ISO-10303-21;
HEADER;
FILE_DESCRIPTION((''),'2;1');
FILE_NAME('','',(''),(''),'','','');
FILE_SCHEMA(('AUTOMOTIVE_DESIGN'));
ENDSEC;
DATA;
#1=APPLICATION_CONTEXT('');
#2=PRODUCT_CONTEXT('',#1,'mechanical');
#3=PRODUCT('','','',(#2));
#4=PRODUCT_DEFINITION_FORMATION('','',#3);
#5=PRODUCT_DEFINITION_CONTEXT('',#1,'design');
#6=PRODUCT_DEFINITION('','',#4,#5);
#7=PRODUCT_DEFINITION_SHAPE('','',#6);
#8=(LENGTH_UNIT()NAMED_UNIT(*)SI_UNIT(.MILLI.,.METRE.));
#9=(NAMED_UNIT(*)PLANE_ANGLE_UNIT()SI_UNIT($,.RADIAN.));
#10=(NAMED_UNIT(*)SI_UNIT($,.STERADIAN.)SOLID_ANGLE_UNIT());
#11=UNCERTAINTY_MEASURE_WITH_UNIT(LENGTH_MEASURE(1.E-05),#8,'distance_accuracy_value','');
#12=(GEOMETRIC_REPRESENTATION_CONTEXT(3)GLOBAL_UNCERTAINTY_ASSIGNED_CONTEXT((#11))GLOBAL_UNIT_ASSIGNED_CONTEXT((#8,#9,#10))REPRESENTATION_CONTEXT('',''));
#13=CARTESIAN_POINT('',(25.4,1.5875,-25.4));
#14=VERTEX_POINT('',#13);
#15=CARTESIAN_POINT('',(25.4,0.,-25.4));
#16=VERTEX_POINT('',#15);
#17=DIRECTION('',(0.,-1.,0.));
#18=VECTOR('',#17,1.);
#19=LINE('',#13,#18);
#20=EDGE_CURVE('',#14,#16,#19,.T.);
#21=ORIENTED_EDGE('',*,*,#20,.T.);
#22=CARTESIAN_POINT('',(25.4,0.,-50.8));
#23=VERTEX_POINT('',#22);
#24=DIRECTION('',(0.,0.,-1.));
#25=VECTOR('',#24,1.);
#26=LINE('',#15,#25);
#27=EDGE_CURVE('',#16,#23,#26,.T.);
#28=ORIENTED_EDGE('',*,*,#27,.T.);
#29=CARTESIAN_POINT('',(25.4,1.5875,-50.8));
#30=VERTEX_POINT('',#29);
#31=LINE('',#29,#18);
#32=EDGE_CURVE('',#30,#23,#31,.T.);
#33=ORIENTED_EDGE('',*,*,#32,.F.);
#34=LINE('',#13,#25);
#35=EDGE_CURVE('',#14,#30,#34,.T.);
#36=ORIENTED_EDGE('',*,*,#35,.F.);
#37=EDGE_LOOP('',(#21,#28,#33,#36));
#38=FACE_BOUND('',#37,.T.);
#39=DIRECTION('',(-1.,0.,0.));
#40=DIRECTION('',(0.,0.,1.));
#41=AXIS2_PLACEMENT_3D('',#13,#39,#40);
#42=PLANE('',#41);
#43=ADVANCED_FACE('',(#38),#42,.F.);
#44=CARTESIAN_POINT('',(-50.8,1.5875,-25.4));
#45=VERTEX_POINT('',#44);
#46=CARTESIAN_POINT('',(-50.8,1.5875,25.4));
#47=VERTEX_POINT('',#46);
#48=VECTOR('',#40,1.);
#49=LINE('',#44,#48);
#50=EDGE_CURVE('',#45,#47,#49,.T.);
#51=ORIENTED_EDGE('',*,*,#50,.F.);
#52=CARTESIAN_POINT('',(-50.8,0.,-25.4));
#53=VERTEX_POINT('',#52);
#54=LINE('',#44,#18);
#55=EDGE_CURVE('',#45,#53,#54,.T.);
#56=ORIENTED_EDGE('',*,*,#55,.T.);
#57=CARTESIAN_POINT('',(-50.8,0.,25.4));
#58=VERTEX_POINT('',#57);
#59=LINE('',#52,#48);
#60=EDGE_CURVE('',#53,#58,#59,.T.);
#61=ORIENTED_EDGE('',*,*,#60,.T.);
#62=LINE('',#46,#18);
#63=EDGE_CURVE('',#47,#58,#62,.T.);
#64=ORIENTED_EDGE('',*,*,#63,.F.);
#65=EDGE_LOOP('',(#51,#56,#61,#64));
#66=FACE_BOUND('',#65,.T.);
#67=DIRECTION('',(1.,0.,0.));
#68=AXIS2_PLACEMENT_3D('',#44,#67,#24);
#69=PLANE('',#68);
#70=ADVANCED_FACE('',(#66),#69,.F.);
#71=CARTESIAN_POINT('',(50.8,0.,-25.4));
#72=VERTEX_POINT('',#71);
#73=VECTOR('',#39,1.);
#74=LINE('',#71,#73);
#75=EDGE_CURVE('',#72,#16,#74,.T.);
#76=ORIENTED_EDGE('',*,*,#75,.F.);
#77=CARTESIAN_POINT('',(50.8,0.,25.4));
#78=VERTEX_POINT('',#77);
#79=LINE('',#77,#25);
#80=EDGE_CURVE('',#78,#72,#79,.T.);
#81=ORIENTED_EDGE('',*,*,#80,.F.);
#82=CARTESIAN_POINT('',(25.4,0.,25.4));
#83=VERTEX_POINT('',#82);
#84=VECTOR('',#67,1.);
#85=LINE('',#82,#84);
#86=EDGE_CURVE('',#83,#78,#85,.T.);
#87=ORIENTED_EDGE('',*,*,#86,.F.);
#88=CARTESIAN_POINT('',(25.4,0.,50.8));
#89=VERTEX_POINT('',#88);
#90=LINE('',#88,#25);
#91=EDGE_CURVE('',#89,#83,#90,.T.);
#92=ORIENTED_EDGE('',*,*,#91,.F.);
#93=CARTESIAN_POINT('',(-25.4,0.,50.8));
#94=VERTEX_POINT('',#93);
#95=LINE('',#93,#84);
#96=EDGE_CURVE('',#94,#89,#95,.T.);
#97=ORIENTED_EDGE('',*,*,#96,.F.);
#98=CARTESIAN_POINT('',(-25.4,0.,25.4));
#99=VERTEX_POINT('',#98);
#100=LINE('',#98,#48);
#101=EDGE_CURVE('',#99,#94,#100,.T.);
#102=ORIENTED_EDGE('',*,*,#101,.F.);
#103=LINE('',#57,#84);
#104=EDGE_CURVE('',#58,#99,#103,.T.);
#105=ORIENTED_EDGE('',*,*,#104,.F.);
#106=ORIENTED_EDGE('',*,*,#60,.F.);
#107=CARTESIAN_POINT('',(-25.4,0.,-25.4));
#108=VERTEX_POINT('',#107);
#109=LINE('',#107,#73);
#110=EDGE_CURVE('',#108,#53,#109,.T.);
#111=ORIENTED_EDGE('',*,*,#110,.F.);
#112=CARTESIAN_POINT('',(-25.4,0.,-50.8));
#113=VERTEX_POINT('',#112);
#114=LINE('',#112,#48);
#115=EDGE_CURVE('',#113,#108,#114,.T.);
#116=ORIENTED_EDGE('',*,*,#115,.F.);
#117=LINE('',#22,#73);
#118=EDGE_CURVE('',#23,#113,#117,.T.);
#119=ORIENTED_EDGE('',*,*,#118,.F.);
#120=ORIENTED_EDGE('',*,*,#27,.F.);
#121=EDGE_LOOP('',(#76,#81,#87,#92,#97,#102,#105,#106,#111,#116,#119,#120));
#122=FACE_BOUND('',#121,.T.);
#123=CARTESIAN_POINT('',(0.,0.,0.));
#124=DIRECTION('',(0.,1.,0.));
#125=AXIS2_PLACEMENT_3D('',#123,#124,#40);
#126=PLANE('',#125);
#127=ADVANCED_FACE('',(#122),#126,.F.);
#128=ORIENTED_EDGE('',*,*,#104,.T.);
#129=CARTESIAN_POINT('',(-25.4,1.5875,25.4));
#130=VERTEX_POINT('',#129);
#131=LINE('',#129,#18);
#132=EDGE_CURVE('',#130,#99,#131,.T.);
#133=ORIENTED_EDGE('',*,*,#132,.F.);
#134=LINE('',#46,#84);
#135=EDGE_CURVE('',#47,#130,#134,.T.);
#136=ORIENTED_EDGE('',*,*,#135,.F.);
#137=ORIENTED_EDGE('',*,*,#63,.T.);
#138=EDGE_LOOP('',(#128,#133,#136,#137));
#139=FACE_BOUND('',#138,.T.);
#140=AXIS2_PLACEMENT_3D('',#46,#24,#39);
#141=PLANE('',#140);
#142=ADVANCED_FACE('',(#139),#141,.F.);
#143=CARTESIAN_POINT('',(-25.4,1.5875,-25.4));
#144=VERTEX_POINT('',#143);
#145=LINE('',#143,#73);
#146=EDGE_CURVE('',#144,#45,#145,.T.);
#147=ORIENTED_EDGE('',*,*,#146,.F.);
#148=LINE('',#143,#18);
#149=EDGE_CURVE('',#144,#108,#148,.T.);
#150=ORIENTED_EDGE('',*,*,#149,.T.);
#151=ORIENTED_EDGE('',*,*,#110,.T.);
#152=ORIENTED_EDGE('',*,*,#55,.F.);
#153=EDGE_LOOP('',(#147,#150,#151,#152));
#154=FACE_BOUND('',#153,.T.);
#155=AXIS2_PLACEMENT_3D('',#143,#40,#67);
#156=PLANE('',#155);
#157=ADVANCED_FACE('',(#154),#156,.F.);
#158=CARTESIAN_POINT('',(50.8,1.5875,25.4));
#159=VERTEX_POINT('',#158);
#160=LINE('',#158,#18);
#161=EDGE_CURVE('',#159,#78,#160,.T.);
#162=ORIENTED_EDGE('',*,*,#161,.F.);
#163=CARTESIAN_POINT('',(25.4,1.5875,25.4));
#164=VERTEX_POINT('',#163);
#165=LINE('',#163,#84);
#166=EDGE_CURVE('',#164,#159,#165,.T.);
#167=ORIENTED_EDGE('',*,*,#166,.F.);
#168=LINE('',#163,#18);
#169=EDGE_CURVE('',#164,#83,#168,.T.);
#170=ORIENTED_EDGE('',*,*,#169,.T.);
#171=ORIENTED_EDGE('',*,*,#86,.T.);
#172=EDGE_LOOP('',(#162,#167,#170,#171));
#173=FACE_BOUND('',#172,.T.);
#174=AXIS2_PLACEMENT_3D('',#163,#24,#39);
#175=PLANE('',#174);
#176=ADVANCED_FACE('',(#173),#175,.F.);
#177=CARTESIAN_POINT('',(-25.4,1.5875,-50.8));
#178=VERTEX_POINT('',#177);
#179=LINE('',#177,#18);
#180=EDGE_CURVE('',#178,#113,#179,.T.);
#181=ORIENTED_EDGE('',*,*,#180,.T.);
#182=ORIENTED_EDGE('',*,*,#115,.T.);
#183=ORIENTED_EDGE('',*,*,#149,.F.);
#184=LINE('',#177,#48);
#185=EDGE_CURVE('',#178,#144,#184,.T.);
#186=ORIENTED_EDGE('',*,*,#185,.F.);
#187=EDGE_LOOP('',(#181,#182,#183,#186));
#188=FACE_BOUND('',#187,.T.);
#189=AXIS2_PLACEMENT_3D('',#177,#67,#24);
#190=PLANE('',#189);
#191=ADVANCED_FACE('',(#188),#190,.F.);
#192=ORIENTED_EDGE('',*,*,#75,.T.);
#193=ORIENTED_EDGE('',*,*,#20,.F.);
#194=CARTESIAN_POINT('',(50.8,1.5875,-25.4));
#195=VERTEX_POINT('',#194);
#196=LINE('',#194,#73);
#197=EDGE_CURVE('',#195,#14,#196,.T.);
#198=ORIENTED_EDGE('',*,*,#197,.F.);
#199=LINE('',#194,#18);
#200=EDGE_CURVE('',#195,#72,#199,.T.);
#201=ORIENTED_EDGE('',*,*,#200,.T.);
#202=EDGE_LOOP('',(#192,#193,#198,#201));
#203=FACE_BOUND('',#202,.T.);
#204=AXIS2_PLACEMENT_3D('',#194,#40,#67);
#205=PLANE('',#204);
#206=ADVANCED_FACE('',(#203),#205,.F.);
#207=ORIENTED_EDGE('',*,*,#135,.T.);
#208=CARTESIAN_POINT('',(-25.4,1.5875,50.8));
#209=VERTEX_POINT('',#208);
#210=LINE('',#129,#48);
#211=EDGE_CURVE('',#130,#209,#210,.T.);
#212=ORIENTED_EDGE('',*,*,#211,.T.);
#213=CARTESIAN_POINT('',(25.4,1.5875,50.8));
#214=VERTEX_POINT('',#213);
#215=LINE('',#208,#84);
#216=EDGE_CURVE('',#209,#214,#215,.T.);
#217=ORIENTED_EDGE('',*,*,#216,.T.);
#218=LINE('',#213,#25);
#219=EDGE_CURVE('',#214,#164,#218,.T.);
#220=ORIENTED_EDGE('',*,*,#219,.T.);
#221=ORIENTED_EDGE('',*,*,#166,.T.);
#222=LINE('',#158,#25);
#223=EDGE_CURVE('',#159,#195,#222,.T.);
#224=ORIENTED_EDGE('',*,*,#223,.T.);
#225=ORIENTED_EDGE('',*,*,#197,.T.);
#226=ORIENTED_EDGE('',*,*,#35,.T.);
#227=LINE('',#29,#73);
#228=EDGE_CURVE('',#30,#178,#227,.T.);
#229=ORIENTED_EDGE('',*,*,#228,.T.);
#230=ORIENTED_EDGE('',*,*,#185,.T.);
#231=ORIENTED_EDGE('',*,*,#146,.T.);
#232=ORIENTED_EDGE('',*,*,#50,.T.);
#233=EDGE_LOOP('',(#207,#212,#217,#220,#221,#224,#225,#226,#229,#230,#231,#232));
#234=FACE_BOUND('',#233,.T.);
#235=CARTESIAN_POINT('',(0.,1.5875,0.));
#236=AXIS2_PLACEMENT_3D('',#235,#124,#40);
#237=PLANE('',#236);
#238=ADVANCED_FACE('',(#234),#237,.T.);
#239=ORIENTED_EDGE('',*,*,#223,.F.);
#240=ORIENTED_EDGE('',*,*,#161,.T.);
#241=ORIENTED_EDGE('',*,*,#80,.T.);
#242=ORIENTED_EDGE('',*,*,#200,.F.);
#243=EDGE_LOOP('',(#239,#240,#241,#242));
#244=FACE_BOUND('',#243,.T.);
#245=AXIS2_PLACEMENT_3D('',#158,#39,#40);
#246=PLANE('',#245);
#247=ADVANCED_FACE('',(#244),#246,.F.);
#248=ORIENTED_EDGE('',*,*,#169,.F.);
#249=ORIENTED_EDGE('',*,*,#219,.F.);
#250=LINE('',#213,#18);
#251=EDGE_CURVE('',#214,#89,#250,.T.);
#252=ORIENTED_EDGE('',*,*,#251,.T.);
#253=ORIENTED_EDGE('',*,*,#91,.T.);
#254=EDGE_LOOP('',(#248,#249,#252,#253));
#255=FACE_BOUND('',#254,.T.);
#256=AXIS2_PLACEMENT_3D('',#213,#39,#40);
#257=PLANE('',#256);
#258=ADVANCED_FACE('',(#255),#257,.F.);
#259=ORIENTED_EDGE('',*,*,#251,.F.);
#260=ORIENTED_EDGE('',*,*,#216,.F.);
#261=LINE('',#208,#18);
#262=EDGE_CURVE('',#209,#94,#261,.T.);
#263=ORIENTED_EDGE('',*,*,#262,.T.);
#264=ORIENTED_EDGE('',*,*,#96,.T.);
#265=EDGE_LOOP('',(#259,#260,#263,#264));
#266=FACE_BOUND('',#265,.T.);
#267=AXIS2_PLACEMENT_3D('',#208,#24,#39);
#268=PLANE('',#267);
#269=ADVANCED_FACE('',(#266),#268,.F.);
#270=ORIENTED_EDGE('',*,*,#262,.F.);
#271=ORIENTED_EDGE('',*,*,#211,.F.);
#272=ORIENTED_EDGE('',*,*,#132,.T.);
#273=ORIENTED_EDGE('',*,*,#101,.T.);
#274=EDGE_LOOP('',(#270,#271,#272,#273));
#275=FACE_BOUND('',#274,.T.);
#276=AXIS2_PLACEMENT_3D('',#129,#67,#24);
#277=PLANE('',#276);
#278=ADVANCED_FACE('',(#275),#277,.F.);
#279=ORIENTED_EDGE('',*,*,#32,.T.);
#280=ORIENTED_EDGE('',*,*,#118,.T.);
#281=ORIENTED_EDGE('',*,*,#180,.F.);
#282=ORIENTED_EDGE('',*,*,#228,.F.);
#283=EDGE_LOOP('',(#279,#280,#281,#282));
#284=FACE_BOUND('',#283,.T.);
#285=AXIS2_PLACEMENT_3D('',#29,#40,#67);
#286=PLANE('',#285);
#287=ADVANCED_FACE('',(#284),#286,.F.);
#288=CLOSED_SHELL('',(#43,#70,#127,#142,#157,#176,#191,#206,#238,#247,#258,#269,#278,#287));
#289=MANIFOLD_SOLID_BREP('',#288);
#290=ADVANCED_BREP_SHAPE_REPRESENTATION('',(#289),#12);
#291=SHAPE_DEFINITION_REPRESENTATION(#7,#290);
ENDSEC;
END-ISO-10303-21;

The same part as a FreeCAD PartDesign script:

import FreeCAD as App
import Part
import Sketcher
Q = App.Units.Quantity

doc = App.newDocument("Part")
body = doc.addObject("PartDesign::Body", "Body")

# Sketch on XZ plane
sketch1 = doc.addObject("Sketcher::SketchObject", "Sketch")
body.addObject(sketch1)
sketch1.AttachmentSupport = (doc.XZ_Plane, [""])
sketch1.MapMode = "FlatFace"
sketch1.addGeometry([
    Part.LineSegment(App.Vector(-25, -51, 0), App.Vector(-25, -25, 0)),  # 0
    Part.LineSegment(App.Vector(-25, -25, 0), App.Vector(-51, -25, 0)),  # 1
    Part.LineSegment(App.Vector(-51, -25, 0), App.Vector(-51, 25, 0)),  # 2
    Part.LineSegment(App.Vector(-51, 25, 0), App.Vector(-25, 25, 0)),  # 3
    Part.LineSegment(App.Vector(-25, 25, 0), App.Vector(-25, 51, 0)),  # 4
    Part.LineSegment(App.Vector(-25, 51, 0), App.Vector(25, 51, 0)),  # 5
    Part.LineSegment(App.Vector(25, 51, 0), App.Vector(25, 25, 0)),  # 6
    Part.LineSegment(App.Vector(25, 25, 0), App.Vector(51, 25, 0)),  # 7
    Part.LineSegment(App.Vector(51, 25, 0), App.Vector(51, -25, 0)),  # 8
    Part.LineSegment(App.Vector(51, -25, 0), App.Vector(25, -25, 0)),  # 9
    Part.LineSegment(App.Vector(25, -25, 0), App.Vector(25, -51, 0)),  # 10
    Part.LineSegment(App.Vector(25, -51, 0), App.Vector(-25, -51, 0)),  # 11
], False)
sketch1.addConstraint([
    Sketcher.Constraint("Coincident", 0, 2, 1, 1),
    Sketcher.Constraint("Coincident", 1, 2, 2, 1),
    Sketcher.Constraint("Coincident", 2, 2, 3, 1),
    Sketcher.Constraint("Coincident", 3, 2, 4, 1),
    Sketcher.Constraint("Coincident", 4, 2, 5, 1),
    Sketcher.Constraint("Coincident", 5, 2, 6, 1),
    Sketcher.Constraint("Coincident", 6, 2, 7, 1),
    Sketcher.Constraint("Coincident", 7, 2, 8, 1),
    Sketcher.Constraint("Coincident", 8, 2, 9, 1),
    Sketcher.Constraint("Coincident", 9, 2, 10, 1),
    Sketcher.Constraint("Coincident", 10, 2, 11, 1),
    Sketcher.Constraint("Coincident", 11, 2, 0, 1),
    Sketcher.Constraint("Vertical", 0),
    Sketcher.Constraint("Horizontal", 1),
    Sketcher.Constraint("Vertical", 2),
    Sketcher.Constraint("Horizontal", 3),
    Sketcher.Constraint("Vertical", 4),
    Sketcher.Constraint("Horizontal", 5),
    Sketcher.Constraint("Vertical", 6),
    Sketcher.Constraint("Horizontal", 7),
    Sketcher.Constraint("Vertical", 8),
    Sketcher.Constraint("Horizontal", 9),
    Sketcher.Constraint("Vertical", 10),
    Sketcher.Constraint("Horizontal", 11),
    Sketcher.Constraint("Symmetric", 0, 2, 6, 2, -1, 1),
    Sketcher.Constraint("Symmetric", 2, 2, 8, 2, -1, 1),
    Sketcher.Constraint("Symmetric", 4, 2, 10, 2, -1, 1),
    Sketcher.Constraint("Symmetric", 3, 2, 6, 2, -2),
    Sketcher.Constraint("Equal", 9, 0),
    Sketcher.Constraint("Equal", 11, 2),
    Sketcher.Constraint("DistanceX", 1, 2, 1, 1, Q("1 in")),
    Sketcher.Constraint("DistanceX", 5, 1, 5, 2, Q("2 in")),
])
pad1 = doc.addObject("PartDesign::Pad", "Pad")
body.addObject(pad1)
pad1.Profile = sketch1
pad1.Length = Q("0.0625 in")
pad1.Reversed = True

doc.recompute()
